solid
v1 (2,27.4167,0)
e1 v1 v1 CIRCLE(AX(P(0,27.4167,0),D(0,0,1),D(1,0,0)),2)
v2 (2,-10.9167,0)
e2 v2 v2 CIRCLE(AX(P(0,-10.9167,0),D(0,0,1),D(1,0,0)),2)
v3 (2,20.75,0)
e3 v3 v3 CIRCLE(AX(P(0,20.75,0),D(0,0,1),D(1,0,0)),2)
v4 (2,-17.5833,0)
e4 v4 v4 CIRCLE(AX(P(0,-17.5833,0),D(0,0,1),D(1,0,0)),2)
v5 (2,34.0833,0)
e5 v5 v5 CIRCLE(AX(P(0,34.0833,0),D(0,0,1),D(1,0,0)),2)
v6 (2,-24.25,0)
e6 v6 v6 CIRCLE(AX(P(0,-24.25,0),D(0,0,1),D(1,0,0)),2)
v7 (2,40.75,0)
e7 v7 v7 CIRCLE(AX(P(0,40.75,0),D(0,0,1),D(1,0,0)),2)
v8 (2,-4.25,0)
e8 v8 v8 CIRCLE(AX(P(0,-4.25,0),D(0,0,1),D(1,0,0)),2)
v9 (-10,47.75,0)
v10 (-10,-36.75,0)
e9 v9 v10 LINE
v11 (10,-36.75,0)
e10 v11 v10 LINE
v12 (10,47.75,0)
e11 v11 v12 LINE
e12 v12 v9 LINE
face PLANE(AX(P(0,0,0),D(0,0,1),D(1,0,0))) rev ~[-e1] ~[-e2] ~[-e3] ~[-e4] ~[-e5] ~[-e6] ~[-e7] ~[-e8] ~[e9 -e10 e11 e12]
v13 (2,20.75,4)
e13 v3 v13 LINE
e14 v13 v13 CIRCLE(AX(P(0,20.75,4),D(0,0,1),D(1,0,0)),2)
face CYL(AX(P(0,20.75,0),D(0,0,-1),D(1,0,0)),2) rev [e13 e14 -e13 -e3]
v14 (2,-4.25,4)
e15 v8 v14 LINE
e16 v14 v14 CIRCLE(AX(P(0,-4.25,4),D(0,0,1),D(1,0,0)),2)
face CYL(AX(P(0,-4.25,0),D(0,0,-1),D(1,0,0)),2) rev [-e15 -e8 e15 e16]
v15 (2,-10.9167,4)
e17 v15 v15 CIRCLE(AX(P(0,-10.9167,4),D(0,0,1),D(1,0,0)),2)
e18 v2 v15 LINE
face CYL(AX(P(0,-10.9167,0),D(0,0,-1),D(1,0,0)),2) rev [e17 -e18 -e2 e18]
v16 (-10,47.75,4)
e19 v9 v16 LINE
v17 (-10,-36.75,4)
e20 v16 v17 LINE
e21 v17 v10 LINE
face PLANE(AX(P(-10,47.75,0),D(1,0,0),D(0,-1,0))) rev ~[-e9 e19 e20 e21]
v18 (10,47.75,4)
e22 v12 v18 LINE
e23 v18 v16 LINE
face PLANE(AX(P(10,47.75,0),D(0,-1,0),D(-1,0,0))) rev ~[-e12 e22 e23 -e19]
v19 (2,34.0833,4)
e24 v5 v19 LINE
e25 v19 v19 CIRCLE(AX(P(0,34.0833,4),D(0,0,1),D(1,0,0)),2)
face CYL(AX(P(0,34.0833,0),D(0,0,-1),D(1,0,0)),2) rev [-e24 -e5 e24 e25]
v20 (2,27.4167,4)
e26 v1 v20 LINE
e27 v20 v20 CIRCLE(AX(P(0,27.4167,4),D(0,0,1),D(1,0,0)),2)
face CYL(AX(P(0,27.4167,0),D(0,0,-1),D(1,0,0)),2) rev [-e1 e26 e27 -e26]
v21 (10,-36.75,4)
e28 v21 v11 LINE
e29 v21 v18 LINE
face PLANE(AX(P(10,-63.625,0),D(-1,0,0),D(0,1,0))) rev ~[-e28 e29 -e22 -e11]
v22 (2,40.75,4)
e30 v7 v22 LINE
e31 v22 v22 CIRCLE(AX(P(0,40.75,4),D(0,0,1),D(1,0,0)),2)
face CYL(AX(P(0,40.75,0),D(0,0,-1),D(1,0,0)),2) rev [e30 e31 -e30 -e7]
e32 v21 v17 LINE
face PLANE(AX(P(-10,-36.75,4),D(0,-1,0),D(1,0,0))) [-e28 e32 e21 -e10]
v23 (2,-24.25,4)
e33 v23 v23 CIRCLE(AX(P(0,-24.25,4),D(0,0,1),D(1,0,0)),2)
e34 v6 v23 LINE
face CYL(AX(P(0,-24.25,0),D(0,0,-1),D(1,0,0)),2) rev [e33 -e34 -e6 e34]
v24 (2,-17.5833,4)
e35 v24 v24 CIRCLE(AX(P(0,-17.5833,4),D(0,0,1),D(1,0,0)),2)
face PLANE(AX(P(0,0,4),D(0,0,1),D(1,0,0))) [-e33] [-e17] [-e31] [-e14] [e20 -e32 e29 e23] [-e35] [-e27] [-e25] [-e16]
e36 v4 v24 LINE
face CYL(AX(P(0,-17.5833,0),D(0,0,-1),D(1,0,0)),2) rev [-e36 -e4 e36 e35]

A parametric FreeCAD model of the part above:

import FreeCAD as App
import Part
import Sketcher


def add_polygon(sketch, points):
    """Adds a closed chain of lines whose ends are joined by coincident constraints."""
    first, n = sketch.GeometryCount, len(points)
    for a, b in zip(points, points[1:] + points[:1]):
        sketch.addGeometry(Part.LineSegment(App.Vector(*a, 0), App.Vector(*b, 0)), False)
    for i in range(n):
        sketch.addConstraint(Sketcher.Constraint("Coincident", first + i, 2, first + (i + 1) % n, 1))

doc = App.newDocument("Part")
body = doc.addObject("PartDesign::Body", "Body")

# Sketch on XY plane
sketch1 = body.newObject("Sketcher::SketchObject", "Sketch")
sketch1.AttachmentSupport = (doc.getObject("XY_Plane"), [""])
sketch1.MapMode = "FlatFace"
add_polygon(sketch1, [(-10, -63.6), (10, -63.6), (10, 47.8), (-10, 47.8)])  # lines 0-3
add_polygon(sketch1, [(-6.1, -36.8), (6.1, -36.8), (6.1, -59.8), (-6.1, -59.8)])  # lines 4-7
sketch1.addGeometry(Part.Circle(App.Vector(0, -30.4, 0), App.Vector(0, 0, 1), 0.9), False)  # 8
sketch1.addGeometry(Part.Circle(App.Vector(0, -24.2, 0), App.Vector(0, 0, 1), 2), False)  # 9
sketch1.addGeometry(Part.Circle(App.Vector(0, -17.6, 0), App.Vector(0, 0, 1), 2), False)  # 10
sketch1.addGeometry(Part.Circle(App.Vector(0, -10.9, 0), App.Vector(0, 0, 1), 2), False)  # 11
sketch1.addGeometry(Part.Circle(App.Vector(0, -4.2, 0), App.Vector(0, 0, 1), 2), False)  # 12
sketch1.addGeometry(Part.Circle(App.Vector(0, 20.8, 0), App.Vector(0, 0, 1), 2), False)  # 13
sketch1.addGeometry(Part.Circle(App.Vector(0, 27.4, 0), App.Vector(0, 0, 1), 2), False)  # 14
sketch1.addGeometry(Part.Circle(App.Vector(0, 34.1, 0), App.Vector(0, 0, 1), 2), False)  # 15
sketch1.addGeometry(Part.Circle(App.Vector(0, 40.8, 0), App.Vector(0, 0, 1), 2), False)  # 16
sketch1.addConstraint([
    Sketcher.Constraint("Horizontal", 0),
    Sketcher.Constraint("Vertical", 1),
    Sketcher.Constraint("Horizontal", 2),
    Sketcher.Constraint("Vertical", 3),
    Sketcher.Constraint("Horizontal", 4),
    Sketcher.Constraint("Vertical", 5),
    Sketcher.Constraint("Horizontal", 6),
    Sketcher.Constraint("Vertical", 7),
    Sketcher.Constraint("Equal", 9, 10),
    Sketcher.Constraint("Equal", 10, 11),
    Sketcher.Constraint("Equal", 11, 12),
    Sketcher.Constraint("Equal", 12, 13),
    Sketcher.Constraint("Equal", 13, 14),
    Sketcher.Constraint("Equal", 14, 15),
    Sketcher.Constraint("Equal", 15, 16),
    Sketcher.Constraint("PointOnObject", 8, 3, -2),
    Sketcher.Constraint("PointOnObject", 9, 3, -2),
    Sketcher.Constraint("PointOnObject", 10, 3, -2),
    Sketcher.Constraint("PointOnObject", 11, 3, -2),
    Sketcher.Constraint("PointOnObject", 12, 3, -2),
    Sketcher.Constraint("PointOnObject", 13, 3, -2),
    Sketcher.Constraint("PointOnObject", 14, 3, -2),
    Sketcher.Constraint("PointOnObject", 15, 3, -2),
    Sketcher.Constraint("PointOnObject", 16, 3, -2),
    Sketcher.Constraint("Diameter", 9, 4.0),
    Sketcher.Constraint("Diameter", 8, 1.75),
    Sketcher.Constraint("DistanceX", 0, 1, 0, 2, 20.0),
    Sketcher.Constraint("DistanceY", 5, 2, 5, 1, 23.0),
    Sketcher.Constraint("DistanceX", -1, 1, 0, 2, 10.0),
    Sketcher.Constraint("DistanceY", 9, 3, 12, 3, 20.0),
    Sketcher.Constraint("DistanceY", 12, 3, 13, 3, 25.0),
    Sketcher.Constraint("DistanceY", 10, 3, 14, 3, 45.0),
    Sketcher.Constraint("DistanceY", 11, 3, 15, 3, 45.0),
    Sketcher.Constraint("DistanceY", 13, 3, 16, 3, 20.0),
    Sketcher.Constraint("DistanceY", 16, 3, 1, 2, 7.0),
    Sketcher.Constraint("DistanceX", 4, 1, 4, 2, 12.25),
    Sketcher.Constraint("DistanceY", 4, 2, 9, 3, 12.5),
    Sketcher.Constraint("DistanceY", 1, 1, 1, 2, 111.375),
    Sketcher.Constraint("DistanceY", 9, 3, -1, 1, 24.25),
    Sketcher.Constraint("DistanceY", 0, 2, 8, 3, 33.25),
    Sketcher.Constraint("DistanceX", -1, 1, 4, 2, 6.125),
    Sketcher.Constraint("DistanceY", 10, 3, -1, 1, 17.5833),
    Sketcher.Constraint("DistanceY", 11, 3, -1, 1, 10.9167),
])
pad1 = body.newObject("PartDesign::Pad", "Pad")
pad1.Profile = sketch1
pad1.Length = 4

# Sketch on XY plane
sketch2 = body.newObject("Sketcher::SketchObject", "Sketch001")
sketch2.AttachmentSupport = (doc.getObject("XY_Plane"), [""])
sketch2.MapMode = "FlatFace"
sketch2.AttachmentOffset = App.Placement(App.Vector(0, 0, 4), App.Rotation())
add_polygon(sketch2, [(6.1, -36.8), (6.1, -59.8), (-6.1, -59.8), (-6.1, -36.8), (-10, -36.8), (-10, -63.6), (10, -63.6), (10, -36.8)])  # lines 0-7
sketch2.addConstraint([
    Sketcher.Constraint("Vertical", 0),
    Sketcher.Constraint("Horizontal", 1),
    Sketcher.Constraint("Vertical", 2),
    Sketcher.Constraint("Horizontal", 3),
    Sketcher.Constraint("Vertical", 4),
    Sketcher.Constraint("Horizontal", 5),
    Sketcher.Constraint("Vertical", 6),
    Sketcher.Constraint("Horizontal", 7),
    Sketcher.Constraint("Symmetric", 3, 2, 6, 2, -2),
    Sketcher.Constraint("Equal", 3, 7),
    Sketcher.Constraint("DistanceX", 5, 1, 5, 2, 20.0),
    Sketcher.Constraint("DistanceY", 0, 2, 0, 1, 23.0),
    Sketcher.Constraint("DistanceX", 1, 2, 1, 1, 12.25),
    Sketcher.Constraint("DistanceY", 4, 2, 4, 1, 26.875),
    Sketcher.Constraint("DistanceY", 0, 2, -1, 1, 59.75),
])
pocket1 = body.newObject("PartDesign::Pocket", "Pocket")
pocket1.Profile = sketch2
pocket1.Length = 4

# Sketch on XY plane
sketch3 = body.newObject("Sketcher::SketchObject", "Sketch002")
sketch3.AttachmentSupport = (doc.getObject("XY_Plane"), [""])
sketch3.MapMode = "FlatFace"
sketch3.AttachmentOffset = App.Placement(App.Vector(0, 0, 4), App.Rotation())
sketch3.addGeometry(Part.Circle(App.Vector(0, -30.4, 0), App.Vector(0, 0, 1), 0.9), False)
sketch3.addConstraint([
    Sketcher.Constraint("PointOnObject", 0, 3, -2),
    Sketcher.Constraint("Diameter", 0, 1.75),
    Sketcher.Constraint("DistanceY", 0, 3, -1, 1, 30.375),
])
pad2 = body.newObject("PartDesign::Pad", "Pad001")
pad2.Profile = sketch3
pad2.Length = 4
pad2.Reversed = True

doc.recompute()
